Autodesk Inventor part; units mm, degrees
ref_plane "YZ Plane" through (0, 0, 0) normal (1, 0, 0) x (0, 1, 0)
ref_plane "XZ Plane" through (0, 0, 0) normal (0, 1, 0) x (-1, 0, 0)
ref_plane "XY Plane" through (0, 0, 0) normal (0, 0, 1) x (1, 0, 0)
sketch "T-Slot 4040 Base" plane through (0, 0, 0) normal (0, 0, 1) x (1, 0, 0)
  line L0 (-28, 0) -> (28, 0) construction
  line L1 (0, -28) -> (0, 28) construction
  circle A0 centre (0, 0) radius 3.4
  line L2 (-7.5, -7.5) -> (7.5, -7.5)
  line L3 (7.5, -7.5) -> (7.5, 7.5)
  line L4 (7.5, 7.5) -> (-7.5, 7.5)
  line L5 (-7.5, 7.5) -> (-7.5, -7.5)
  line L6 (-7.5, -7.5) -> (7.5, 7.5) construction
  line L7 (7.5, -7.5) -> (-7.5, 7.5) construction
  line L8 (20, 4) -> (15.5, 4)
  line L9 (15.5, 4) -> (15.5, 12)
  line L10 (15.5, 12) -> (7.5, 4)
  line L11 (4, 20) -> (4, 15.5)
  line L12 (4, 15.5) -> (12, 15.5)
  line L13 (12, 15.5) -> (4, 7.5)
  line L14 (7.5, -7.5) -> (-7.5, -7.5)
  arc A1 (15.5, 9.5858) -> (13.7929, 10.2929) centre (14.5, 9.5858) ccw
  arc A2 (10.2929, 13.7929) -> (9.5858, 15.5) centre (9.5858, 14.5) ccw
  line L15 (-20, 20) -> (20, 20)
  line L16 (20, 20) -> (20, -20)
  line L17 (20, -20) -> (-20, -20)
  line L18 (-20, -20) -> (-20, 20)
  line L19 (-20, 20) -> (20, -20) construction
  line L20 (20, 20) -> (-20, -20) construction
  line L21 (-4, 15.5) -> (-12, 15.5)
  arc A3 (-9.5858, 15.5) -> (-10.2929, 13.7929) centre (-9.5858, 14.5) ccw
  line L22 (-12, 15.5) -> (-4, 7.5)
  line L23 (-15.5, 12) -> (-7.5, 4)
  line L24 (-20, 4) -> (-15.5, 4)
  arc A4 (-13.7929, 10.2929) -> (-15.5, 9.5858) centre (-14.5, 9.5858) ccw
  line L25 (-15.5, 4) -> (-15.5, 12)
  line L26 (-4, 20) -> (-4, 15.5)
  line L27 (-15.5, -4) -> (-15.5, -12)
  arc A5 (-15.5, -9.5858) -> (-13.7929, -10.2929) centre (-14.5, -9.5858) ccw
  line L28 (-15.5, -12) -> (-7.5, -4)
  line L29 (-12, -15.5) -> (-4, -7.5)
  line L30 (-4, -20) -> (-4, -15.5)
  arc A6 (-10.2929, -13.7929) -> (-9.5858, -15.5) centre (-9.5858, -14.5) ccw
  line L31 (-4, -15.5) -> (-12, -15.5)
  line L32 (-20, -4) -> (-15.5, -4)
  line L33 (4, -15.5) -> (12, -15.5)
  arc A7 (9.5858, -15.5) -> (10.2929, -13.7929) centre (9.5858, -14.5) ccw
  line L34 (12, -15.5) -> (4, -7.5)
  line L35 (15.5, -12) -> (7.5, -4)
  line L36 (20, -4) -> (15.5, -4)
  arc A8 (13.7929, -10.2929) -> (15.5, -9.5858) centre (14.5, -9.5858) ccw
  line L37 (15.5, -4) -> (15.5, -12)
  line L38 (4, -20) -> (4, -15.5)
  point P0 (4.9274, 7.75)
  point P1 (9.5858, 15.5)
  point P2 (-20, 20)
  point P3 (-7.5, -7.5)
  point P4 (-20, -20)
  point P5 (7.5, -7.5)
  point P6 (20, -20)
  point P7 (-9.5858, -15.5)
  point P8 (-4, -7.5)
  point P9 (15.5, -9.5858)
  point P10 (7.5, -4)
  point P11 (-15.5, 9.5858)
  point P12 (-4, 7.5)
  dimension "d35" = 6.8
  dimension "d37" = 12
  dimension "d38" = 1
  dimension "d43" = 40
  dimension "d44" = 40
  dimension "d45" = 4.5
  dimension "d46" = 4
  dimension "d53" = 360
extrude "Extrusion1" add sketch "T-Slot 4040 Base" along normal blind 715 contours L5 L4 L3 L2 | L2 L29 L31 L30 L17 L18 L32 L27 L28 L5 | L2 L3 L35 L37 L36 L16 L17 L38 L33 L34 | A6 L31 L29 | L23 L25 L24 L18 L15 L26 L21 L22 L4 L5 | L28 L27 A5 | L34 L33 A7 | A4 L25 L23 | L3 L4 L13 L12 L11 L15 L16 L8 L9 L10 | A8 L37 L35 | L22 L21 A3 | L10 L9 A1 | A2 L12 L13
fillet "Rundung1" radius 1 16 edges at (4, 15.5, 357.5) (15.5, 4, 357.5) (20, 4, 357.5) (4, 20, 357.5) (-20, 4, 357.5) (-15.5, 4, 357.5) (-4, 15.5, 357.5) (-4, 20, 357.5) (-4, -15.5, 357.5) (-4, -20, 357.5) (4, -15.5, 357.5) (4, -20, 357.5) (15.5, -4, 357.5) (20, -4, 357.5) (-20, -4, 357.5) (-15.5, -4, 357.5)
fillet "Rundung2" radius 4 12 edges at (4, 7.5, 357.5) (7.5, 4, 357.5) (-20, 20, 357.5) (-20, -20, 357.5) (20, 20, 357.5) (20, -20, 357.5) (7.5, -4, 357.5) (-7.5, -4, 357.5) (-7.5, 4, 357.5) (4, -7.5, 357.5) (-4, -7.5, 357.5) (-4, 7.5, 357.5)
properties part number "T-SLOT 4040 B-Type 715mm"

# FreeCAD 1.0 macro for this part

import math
import FreeCAD as App
import Part
import Sketcher

V = App.Vector


def edges_at(feature, points):
    """Names of the edges that pass closest to the given points."""
    edges = feature.Shape.Edges
    near = lambda p: min(range(len(edges)), key=lambda i: edges[i].distToShape(Part.Vertex(*p))[0])
    return sorted({f"Edge{near(p) + 1}" for p in points})

doc = App.newDocument("Part")
body = doc.addObject("PartDesign::Body", "Body")

sketch1 = body.newObject("Sketcher::SketchObject", "Sketch")
sketch1.AttachmentSupport = (doc.getObject("XY_Plane"), [""])
sketch1.MapMode = "FlatFace"
sketch1.addGeometry(Part.LineSegment(V(-7.5, 4, 0), V(-7.5, -4, 0)), False)
sketch1.addGeometry(Part.LineSegment(V(-7.5, -4, 0), V(-13.7929, -10.2929, 0)), False)
sketch1.addGeometry(Part.ArcOfCircle(Part.Circle(V(-14.5, -9.5858, 0), V(0, 0, 1), 1), math.radians(180), math.radians(315)), False)
sketch1.addGeometry(Part.LineSegment(V(-15.5, -9.5858, 0), V(-15.5, -4, 0)), False)
sketch1.addGeometry(Part.LineSegment(V(-15.5, -4, 0), V(-20, -4, 0)), False)
sketch1.addGeometry(Part.LineSegment(V(-20, -4, 0), V(-20, -20, 0)), False)
sketch1.addGeometry(Part.LineSegment(V(-20, -20, 0), V(-4, -20, 0)), False)
sketch1.addGeometry(Part.LineSegment(V(-4, -20, 0), V(-4, -15.5, 0)), False)
sketch1.addGeometry(Part.LineSegment(V(-4, -15.5, 0), V(-9.5858, -15.5, 0)), False)
sketch1.addGeometry(Part.ArcOfCircle(Part.Circle(V(-9.5858, -14.5, 0), V(0, 0, 1), 0.99999), math.radians(135), math.radians(270)), False)
sketch1.addGeometry(Part.LineSegment(V(-10.2929, -13.7929, 0), V(-4, -7.5, 0)), False)
sketch1.addGeometry(Part.LineSegment(V(-4, -7.5, 0), V(4, -7.5, 0)), False)
sketch1.addGeometry(Part.LineSegment(V(4, -7.5, 0), V(10.2929, -13.7929, 0)), False)
sketch1.addGeometry(Part.ArcOfCircle(Part.Circle(V(9.5858, -14.5, 0), V(0, 0, 1), 1), math.radians(-90), math.radians(45)), False)
sketch1.addGeometry(Part.LineSegment(V(9.5858, -15.5, 0), V(4, -15.5, 0)), False)
sketch1.addGeometry(Part.LineSegment(V(4, -15.5, 0), V(4, -20, 0)), False)
sketch1.addGeometry(Part.LineSegment(V(4, -20, 0), V(20, -20, 0)), False)
sketch1.addGeometry(Part.LineSegment(V(20, -20, 0), V(20, -4, 0)), False)
sketch1.addGeometry(Part.LineSegment(V(20, -4, 0), V(15.5, -4, 0)), False)
sketch1.addGeometry(Part.LineSegment(V(15.5, -4, 0), V(15.5, -9.5858, 0)), False)
sketch1.addGeometry(Part.ArcOfCircle(Part.Circle(V(14.5, -9.5858, 0), V(0, 0, 1), 0.99999), math.radians(-135), math.radians(0)), False)
sketch1.addGeometry(Part.LineSegment(V(13.7929, -10.2929, 0), V(7.5, -4, 0)), False)
sketch1.addGeometry(Part.LineSegment(V(7.5, -4, 0), V(7.5, 4, 0)), False)
sketch1.addGeometry(Part.LineSegment(V(7.5, 4, 0), V(13.7929, 10.2929, 0)), False)
sketch1.addGeometry(Part.ArcOfCircle(Part.Circle(V(14.5, 9.5858, 0), V(0, 0, 1), 1), math.radians(0), math.radians(135)), False)
sketch1.addGeometry(Part.LineSegment(V(15.5, 9.5858, 0), V(15.5, 4, 0)), False)
sketch1.addGeometry(Part.LineSegment(V(15.5, 4, 0), V(20, 4, 0)), False)
sketch1.addGeometry(Part.LineSegment(V(20, 4, 0), V(20, 20, 0)), False)
sketch1.addGeometry(Part.LineSegment(V(20, 20, 0), V(4, 20, 0)), False)
sketch1.addGeometry(Part.LineSegment(V(4, 20, 0), V(4, 15.5, 0)), False)
sketch1.addGeometry(Part.LineSegment(V(4, 15.5, 0), V(9.5858, 15.5, 0)), False)
sketch1.addGeometry(Part.ArcOfCircle(Part.Circle(V(9.5858, 14.5, 0), V(0, 0, 1), 0.99999), math.radians(-45), math.radians(90)), False)
sketch1.addGeometry(Part.LineSegment(V(10.2929, 13.7929, 0), V(4, 7.5, 0)), False)
sketch1.addGeometry(Part.LineSegment(V(4, 7.5, 0), V(-4, 7.5, 0)), False)
sketch1.addGeometry(Part.LineSegment(V(-4, 7.5, 0), V(-10.2929, 13.7929, 0)), False)
sketch1.addGeometry(Part.ArcOfCircle(Part.Circle(V(-9.5858, 14.5, 0), V(0, 0, 1), 1), math.radians(90), math.radians(225)), False)
sketch1.addGeometry(Part.LineSegment(V(-9.5858, 15.5, 0), V(-4, 15.5, 0)), False)
sketch1.addGeometry(Part.LineSegment(V(-4, 15.5, 0), V(-4, 20, 0)), False)
sketch1.addGeometry(Part.LineSegment(V(-4, 20, 0), V(-20, 20, 0)), False)
sketch1.addGeometry(Part.LineSegment(V(-20, 20, 0), V(-20, 4, 0)), False)
sketch1.addGeometry(Part.LineSegment(V(-20, 4, 0), V(-15.5, 4, 0)), False)
sketch1.addGeometry(Part.LineSegment(V(-15.5, 4, 0), V(-15.5, 9.5858, 0)), False)
sketch1.addGeometry(Part.ArcOfCircle(Part.Circle(V(-14.5, 9.5858, 0), V(0, 0, 1), 0.99999), math.radians(45), math.radians(180)), False)
sketch1.addGeometry(Part.LineSegment(V(-13.7929, 10.2929, 0), V(-7.5, 4, 0)), False)
sketch1.addGeometry(Part.Circle(V(0, 0, 0), V(0, 0, 1), 3.4), False)
sketch1.addConstraint(Sketcher.Constraint("Coincident", 0, 2, 1, 1))
sketch1.addConstraint(Sketcher.Constraint("Tangent", 1, 2, 2, 2))
sketch1.addConstraint(Sketcher.Constraint("Tangent", 2, 1, 3, 1))
sketch1.addConstraint(Sketcher.Constraint("Coincident", 3, 2, 4, 1))
sketch1.addConstraint(Sketcher.Constraint("Coincident", 4, 2, 5, 1))
sketch1.addConstraint(Sketcher.Constraint("Coincident", 5, 2, 6, 1))
sketch1.addConstraint(Sketcher.Constraint("Coincident", 6, 2, 7, 1))
sketch1.addConstraint(Sketcher.Constraint("Coincident", 7, 2, 8, 1))
sketch1.addConstraint(Sketcher.Constraint("Tangent", 8, 2, 9, 2))
sketch1.addConstraint(Sketcher.Constraint("Tangent", 9, 1, 10, 1))
sketch1.addConstraint(Sketcher.Constraint("Coincident", 10, 2, 11, 1))
sketch1.addConstraint(Sketcher.Constraint("Coincident", 11, 2, 12, 1))
sketch1.addConstraint(Sketcher.Constraint("Tangent", 12, 2, 13, 2))
sketch1.addConstraint(Sketcher.Constraint("Tangent", 13, 1, 14, 1))
sketch1.addConstraint(Sketcher.Constraint("Coincident", 14, 2, 15, 1))
sketch1.addConstraint(Sketcher.Constraint("Coincident", 15, 2, 16, 1))
sketch1.addConstraint(Sketcher.Constraint("Coincident", 16, 2, 17, 1))
sketch1.addConstraint(Sketcher.Constraint("Coincident", 17, 2, 18, 1))
sketch1.addConstraint(Sketcher.Constraint("Coincident", 18, 2, 19, 1))
sketch1.addConstraint(Sketcher.Constraint("Tangent", 19, 2, 20, 2))
sketch1.addConstraint(Sketcher.Constraint("Tangent", 20, 1, 21, 1))
sketch1.addConstraint(Sketcher.Constraint("Coincident", 21, 2, 22, 1))
sketch1.addConstraint(Sketcher.Constraint("Coincident", 22, 2, 23, 1))
sketch1.addConstraint(Sketcher.Constraint("Tangent", 23, 2, 24, 2))
sketch1.addConstraint(Sketcher.Constraint("Tangent", 24, 1, 25, 1))
sketch1.addConstraint(Sketcher.Constraint("Coincident", 25, 2, 26, 1))
sketch1.addConstraint(Sketcher.Constraint("Coincident", 26, 2, 27, 1))
sketch1.addConstraint(Sketcher.Constraint("Coincident", 27, 2, 28, 1))
sketch1.addConstraint(Sketcher.Constraint("Coincident", 28, 2, 29, 1))
sketch1.addConstraint(Sketcher.Constraint("Coincident", 29, 2, 30, 1))
sketch1.addConstraint(Sketcher.Constraint("Tangent", 30, 2, 31, 2))
sketch1.addConstraint(Sketcher.Constraint("Tangent", 31, 1, 32, 1))
sketch1.addConstraint(Sketcher.Constraint("Coincident", 32, 2, 33, 1))
sketch1.addConstraint(Sketcher.Constraint("Coincident", 33, 2, 34, 1))
sketch1.addConstraint(Sketcher.Constraint("Tangent", 34, 2, 35, 2))
sketch1.addConstraint(Sketcher.Constraint("Tangent", 35, 1, 36, 1))
sketch1.addConstraint(Sketcher.Constraint("Coincident", 36, 2, 37, 1))
sketch1.addConstraint(Sketcher.Constraint("Coincident", 37, 2, 38, 1))
sketch1.addConstraint(Sketcher.Constraint("Coincident", 38, 2, 39, 1))
sketch1.addConstraint(Sketcher.Constraint("Coincident", 39, 2, 40, 1))
sketch1.addConstraint(Sketcher.Constraint("Coincident", 40, 2, 41, 1))
sketch1.addConstraint(Sketcher.Constraint("Tangent", 41, 2, 42, 2))
sketch1.addConstraint(Sketcher.Constraint("Tangent", 42, 1, 43, 1))
sketch1.addConstraint(Sketcher.Constraint("Coincident", 43, 2, 0, 1))
sketch1.addConstraint(Sketcher.Constraint("Vertical", 0))
sketch1.addConstraint(Sketcher.Constraint("Vertical", 3))
sketch1.addConstraint(Sketcher.Constraint("Horizontal", 4))
sketch1.addConstraint(Sketcher.Constraint("Vertical", 5))
sketch1.addConstraint(Sketcher.Constraint("Horizontal", 6))
sketch1.addConstraint(Sketcher.Constraint("Vertical", 7))
sketch1.addConstraint(Sketcher.Constraint("Horizontal", 8))
sketch1.addConstraint(Sketcher.Constraint("Horizontal", 11))
sketch1.addConstraint(Sketcher.Constraint("Horizontal", 14))
sketch1.addConstraint(Sketcher.Constraint("Vertical", 15))
sketch1.addConstraint(Sketcher.Constraint("Horizontal", 16))
sketch1.addConstraint(Sketcher.Constraint("Vertical", 17))
sketch1.addConstraint(Sketcher.Constraint("Horizontal", 18))
sketch1.addConstraint(Sketcher.Constraint("Vertical", 19))
sketch1.addConstraint(Sketcher.Constraint("Vertical", 22))
sketch1.addConstraint(Sketcher.Constraint("Vertical", 25))
sketch1.addConstraint(Sketcher.Constraint("Horizontal", 26))
sketch1.addConstraint(Sketcher.Constraint("Vertical", 27))
sketch1.addConstraint(Sketcher.Constraint("Horizontal", 28))
sketch1.addConstraint(Sketcher.Constraint("Vertical", 29))
sketch1.addConstraint(Sketcher.Constraint("Horizontal", 30))
sketch1.addConstraint(Sketcher.Constraint("Horizontal", 33))
sketch1.addConstraint(Sketcher.Constraint("Horizontal", 36))
sketch1.addConstraint(Sketcher.Constraint("Vertical", 37))
sketch1.addConstraint(Sketcher.Constraint("Horizontal", 38))
sketch1.addConstraint(Sketcher.Constraint("Vertical", 39))
sketch1.addConstraint(Sketcher.Constraint("Horizontal", 40))
sketch1.addConstraint(Sketcher.Constraint("Vertical", 41))
sketch1.addConstraint(Sketcher.Constraint("Coincident", 44, 3, -1, 1))
sketch1.addConstraint(Sketcher.Constraint("Equal", 2, 9))
sketch1.addConstraint(Sketcher.Constraint("Equal", 9, 13))
sketch1.addConstraint(Sketcher.Constraint("Equal", 13, 20))
sketch1.addConstraint(Sketcher.Constraint("Equal", 20, 24))
sketch1.addConstraint(Sketcher.Constraint("Equal", 24, 31))
sketch1.addConstraint(Sketcher.Constraint("Equal", 31, 35))
sketch1.addConstraint(Sketcher.Constraint("Equal", 35, 42))
sketch1.addConstraint(Sketcher.Constraint("Symmetric", 2, 3, 24, 3, -1, 1))
sketch1.addConstraint(Sketcher.Constraint("Symmetric", 9, 3, 31, 3, -1, 1))
sketch1.addConstraint(Sketcher.Constraint("Symmetric", 13, 3, 35, 3, -1, 1))
sketch1.addConstraint(Sketcher.Constraint("Symmetric", 20, 3, 42, 3, -1, 1))
sketch1.addConstraint(Sketcher.Constraint("Symmetric", 0, 2, 22, 2, -1, 1))
sketch1.addConstraint(Sketcher.Constraint("Symmetric", 4, 2, 26, 2, -1, 1))
sketch1.addConstraint(Sketcher.Constraint("Symmetric", 6, 2, 28, 2, -1, 1))
sketch1.addConstraint(Sketcher.Constraint("Symmetric", 10, 2, 32, 2, -1, 1))
sketch1.addConstraint(Sketcher.Constraint("Symmetric", 15, 2, 37, 2, -1, 1))
sketch1.addConstraint(Sketcher.Constraint("Symmetric", 17, 2, 39, 2, -1, 1))
sketch1.addConstraint(Sketcher.Constraint("Symmetric", 9, 3, 13, 3, -2))
sketch1.addConstraint(Sketcher.Constraint("Symmetric", 2, 3, 20, 3, -2))
sketch1.addConstraint(Sketcher.Constraint("Symmetric", 6, 2, 15, 2, -2))
sketch1.addConstraint(Sketcher.Constraint("Symmetric", 4, 2, 17, 2, -2))
sketch1.addConstraint(Sketcher.Constraint("Parallel", 1, 10))
sketch1.addConstraint(Sketcher.Constraint("Perpendicular", 10, 12))
sketch1.addConstraint(Sketcher.Constraint("Parallel", 12, 21))
sketch1.addConstraint(Sketcher.Constraint("Perpendicular", 32, 34))
sketch1.addConstraint(Sketcher.Constraint("Parallel", 34, 43))
sketch1.addConstraint(Sketcher.Constraint("Horizontal", 0, 2, 3, 2))
sketch1.addConstraint(Sketcher.Constraint("Horizontal", 9, 1, 12, 2))
sketch1.addConstraint(Sketcher.Constraint("Vertical", 7, 2, 10, 2))
sketch1.addConstraint(Sketcher.Constraint("Equal", 33, 0))
sketch1.addConstraint(Sketcher.Constraint("Equal", 36, 3))
sketch1.addConstraint(Sketcher.Constraint("Equal", 38, 5))
sketch1.addConstraint(Sketcher.Constraint("Equal", 40, 7))
sketch1.addConstraint(Sketcher.Constraint("Radius", 2, 1.0))
sketch1.addConstraint(Sketcher.Constraint("Diameter", 44, 6.8))
sketch1.addConstraint(Sketcher.Constraint("DistanceX", 4, 2, 4, 1, 4.5))
sketch1.addConstraint(Sketcher.Constraint("DistanceY", 0, 2, -1, 1, 4.0))
sketch1.addConstraint(Sketcher.Constraint("DistanceX", 6, 1, 6, 2, 16.0))
sketch1.addConstraint(Sketcher.Constraint("DistanceX", 2, 3, 0, 2, 7.0))
pad1 = body.newObject("PartDesign::Pad", "Pad")
pad1.Profile = sketch1
pad1.Length = 715
doc.recompute()

fillet = body.newObject("PartDesign::Fillet", "Fillet")
fillet.Base = (pad1, edges_at(pad1, [
    (4, 15.5, 357.5),
    (15.5, 4, 357.5),
    (20, 4, 357.5),
    (4, 20, 357.5),
    (-20, 4, 357.5),
    (-15.5, 4, 357.5),
    (-4, 15.5, 357.5),
    (-4, 20, 357.5),
    (-4, -15.5, 357.5),
    (-4, -20, 357.5),
    (4, -15.5, 357.5),
    (4, -20, 357.5),
    (15.5, -4, 357.5),
    (20, -4, 357.5),
    (-20, -4, 357.5),
    (-15.5, -4, 357.5),
]))
fillet.Radius = 1
doc.recompute()

fillet2 = body.newObject("PartDesign::Fillet", "Fillet001")
fillet2.Base = (fillet, edges_at(fillet, [
    (4, 7.5, 357.5),
    (7.5, 4, 357.5),
    (-20, 20, 357.5),
    (-20, -20, 357.5),
    (20, 20, 357.5),
    (20, -20, 357.5),
    (7.5, -4, 357.5),
    (-7.5, -4, 357.5),
    (-7.5, 4, 357.5),
    (4, -7.5, 357.5),
    (-4, -7.5, 357.5),
    (-4, 7.5, 357.5),
]))
fillet2.Radius = 4

doc.recompute()
